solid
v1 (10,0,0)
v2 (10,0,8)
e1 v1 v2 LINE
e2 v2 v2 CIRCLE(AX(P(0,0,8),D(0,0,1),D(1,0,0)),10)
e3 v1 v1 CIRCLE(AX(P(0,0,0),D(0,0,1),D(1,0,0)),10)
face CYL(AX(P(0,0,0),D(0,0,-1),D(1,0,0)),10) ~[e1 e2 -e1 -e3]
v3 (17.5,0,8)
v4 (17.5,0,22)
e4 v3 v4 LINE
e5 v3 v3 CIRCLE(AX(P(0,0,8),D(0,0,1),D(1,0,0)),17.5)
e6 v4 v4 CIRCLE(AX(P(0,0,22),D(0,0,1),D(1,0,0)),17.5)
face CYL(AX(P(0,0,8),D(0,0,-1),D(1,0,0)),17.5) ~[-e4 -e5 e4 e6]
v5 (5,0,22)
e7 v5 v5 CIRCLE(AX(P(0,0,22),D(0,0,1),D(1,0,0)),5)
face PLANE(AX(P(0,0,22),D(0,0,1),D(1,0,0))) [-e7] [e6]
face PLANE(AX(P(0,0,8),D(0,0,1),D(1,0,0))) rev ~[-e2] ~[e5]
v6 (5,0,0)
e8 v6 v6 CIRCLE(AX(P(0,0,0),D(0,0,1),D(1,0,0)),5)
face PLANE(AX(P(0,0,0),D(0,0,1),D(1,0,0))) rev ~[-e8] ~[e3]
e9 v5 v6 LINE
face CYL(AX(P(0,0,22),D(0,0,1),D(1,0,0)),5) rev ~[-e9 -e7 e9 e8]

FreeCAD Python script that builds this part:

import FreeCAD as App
import Part
import Sketcher

V = App.Vector
Q = App.Units.Quantity

doc = App.newDocument("Part")
body = doc.addObject("PartDesign::Body", "Body")

sketch1 = body.newObject("Sketcher::SketchObject", "Sketch")
sketch1.AttachmentSupport = (doc.getObject("XY_Plane"), [""])
sketch1.MapMode = "FlatFace"
sketch1.addGeometry(Part.Circle(V(0, 0, 0), V(0, 0, 1), 10), False)
sketch1.addConstraint(Sketcher.Constraint("Coincident", 0, 3, -1, 1))
sketch1.addConstraint(Sketcher.Constraint("Diameter", 0, Q("20 mm")))
pad1 = body.newObject("PartDesign::Pad", "Pad")
pad1.Profile = sketch1
pad1.Length = 8

sketch2 = body.newObject("Sketcher::SketchObject", "Sketch001")
sketch2.AttachmentSupport = (doc.getObject("XY_Plane"), [""])
sketch2.MapMode = "FlatFace"
sketch2.AttachmentOffset = App.Placement(V(0, 0, 8), App.Rotation())
sketch2.addGeometry(Part.Circle(V(0, 0, 0), V(0, 0, 1), 18), False)
sketch2.addConstraint(Sketcher.Constraint("Coincident", 0, 3, -1, 1))
sketch2.addConstraint(Sketcher.Constraint("Diameter", 0, Q("35 mm")))
pad2 = body.newObject("PartDesign::Pad", "Pad001")
pad2.Profile = sketch2
pad2.Length = 14

sketch3 = body.newObject("Sketcher::SketchObject", "Sketch002")
sketch3.AttachmentSupport = (doc.getObject("XY_Plane"), [""])
sketch3.MapMode = "FlatFace"
sketch3.AttachmentOffset = App.Placement(V(0, 0, 22), App.Rotation())
sketch3.addGeometry(Part.Circle(V(0, 0, 0), V(0, 0, 1), 5), False)
sketch3.addConstraint(Sketcher.Constraint("Coincident", 0, 3, -1, 1))
sketch3.addConstraint(Sketcher.Constraint("Diameter", 0, Q("10 mm")))
pocket1 = body.newObject("PartDesign::Pocket", "Pocket")
pocket1.Profile = sketch3
pocket1.Length = 40

doc.recompute()
